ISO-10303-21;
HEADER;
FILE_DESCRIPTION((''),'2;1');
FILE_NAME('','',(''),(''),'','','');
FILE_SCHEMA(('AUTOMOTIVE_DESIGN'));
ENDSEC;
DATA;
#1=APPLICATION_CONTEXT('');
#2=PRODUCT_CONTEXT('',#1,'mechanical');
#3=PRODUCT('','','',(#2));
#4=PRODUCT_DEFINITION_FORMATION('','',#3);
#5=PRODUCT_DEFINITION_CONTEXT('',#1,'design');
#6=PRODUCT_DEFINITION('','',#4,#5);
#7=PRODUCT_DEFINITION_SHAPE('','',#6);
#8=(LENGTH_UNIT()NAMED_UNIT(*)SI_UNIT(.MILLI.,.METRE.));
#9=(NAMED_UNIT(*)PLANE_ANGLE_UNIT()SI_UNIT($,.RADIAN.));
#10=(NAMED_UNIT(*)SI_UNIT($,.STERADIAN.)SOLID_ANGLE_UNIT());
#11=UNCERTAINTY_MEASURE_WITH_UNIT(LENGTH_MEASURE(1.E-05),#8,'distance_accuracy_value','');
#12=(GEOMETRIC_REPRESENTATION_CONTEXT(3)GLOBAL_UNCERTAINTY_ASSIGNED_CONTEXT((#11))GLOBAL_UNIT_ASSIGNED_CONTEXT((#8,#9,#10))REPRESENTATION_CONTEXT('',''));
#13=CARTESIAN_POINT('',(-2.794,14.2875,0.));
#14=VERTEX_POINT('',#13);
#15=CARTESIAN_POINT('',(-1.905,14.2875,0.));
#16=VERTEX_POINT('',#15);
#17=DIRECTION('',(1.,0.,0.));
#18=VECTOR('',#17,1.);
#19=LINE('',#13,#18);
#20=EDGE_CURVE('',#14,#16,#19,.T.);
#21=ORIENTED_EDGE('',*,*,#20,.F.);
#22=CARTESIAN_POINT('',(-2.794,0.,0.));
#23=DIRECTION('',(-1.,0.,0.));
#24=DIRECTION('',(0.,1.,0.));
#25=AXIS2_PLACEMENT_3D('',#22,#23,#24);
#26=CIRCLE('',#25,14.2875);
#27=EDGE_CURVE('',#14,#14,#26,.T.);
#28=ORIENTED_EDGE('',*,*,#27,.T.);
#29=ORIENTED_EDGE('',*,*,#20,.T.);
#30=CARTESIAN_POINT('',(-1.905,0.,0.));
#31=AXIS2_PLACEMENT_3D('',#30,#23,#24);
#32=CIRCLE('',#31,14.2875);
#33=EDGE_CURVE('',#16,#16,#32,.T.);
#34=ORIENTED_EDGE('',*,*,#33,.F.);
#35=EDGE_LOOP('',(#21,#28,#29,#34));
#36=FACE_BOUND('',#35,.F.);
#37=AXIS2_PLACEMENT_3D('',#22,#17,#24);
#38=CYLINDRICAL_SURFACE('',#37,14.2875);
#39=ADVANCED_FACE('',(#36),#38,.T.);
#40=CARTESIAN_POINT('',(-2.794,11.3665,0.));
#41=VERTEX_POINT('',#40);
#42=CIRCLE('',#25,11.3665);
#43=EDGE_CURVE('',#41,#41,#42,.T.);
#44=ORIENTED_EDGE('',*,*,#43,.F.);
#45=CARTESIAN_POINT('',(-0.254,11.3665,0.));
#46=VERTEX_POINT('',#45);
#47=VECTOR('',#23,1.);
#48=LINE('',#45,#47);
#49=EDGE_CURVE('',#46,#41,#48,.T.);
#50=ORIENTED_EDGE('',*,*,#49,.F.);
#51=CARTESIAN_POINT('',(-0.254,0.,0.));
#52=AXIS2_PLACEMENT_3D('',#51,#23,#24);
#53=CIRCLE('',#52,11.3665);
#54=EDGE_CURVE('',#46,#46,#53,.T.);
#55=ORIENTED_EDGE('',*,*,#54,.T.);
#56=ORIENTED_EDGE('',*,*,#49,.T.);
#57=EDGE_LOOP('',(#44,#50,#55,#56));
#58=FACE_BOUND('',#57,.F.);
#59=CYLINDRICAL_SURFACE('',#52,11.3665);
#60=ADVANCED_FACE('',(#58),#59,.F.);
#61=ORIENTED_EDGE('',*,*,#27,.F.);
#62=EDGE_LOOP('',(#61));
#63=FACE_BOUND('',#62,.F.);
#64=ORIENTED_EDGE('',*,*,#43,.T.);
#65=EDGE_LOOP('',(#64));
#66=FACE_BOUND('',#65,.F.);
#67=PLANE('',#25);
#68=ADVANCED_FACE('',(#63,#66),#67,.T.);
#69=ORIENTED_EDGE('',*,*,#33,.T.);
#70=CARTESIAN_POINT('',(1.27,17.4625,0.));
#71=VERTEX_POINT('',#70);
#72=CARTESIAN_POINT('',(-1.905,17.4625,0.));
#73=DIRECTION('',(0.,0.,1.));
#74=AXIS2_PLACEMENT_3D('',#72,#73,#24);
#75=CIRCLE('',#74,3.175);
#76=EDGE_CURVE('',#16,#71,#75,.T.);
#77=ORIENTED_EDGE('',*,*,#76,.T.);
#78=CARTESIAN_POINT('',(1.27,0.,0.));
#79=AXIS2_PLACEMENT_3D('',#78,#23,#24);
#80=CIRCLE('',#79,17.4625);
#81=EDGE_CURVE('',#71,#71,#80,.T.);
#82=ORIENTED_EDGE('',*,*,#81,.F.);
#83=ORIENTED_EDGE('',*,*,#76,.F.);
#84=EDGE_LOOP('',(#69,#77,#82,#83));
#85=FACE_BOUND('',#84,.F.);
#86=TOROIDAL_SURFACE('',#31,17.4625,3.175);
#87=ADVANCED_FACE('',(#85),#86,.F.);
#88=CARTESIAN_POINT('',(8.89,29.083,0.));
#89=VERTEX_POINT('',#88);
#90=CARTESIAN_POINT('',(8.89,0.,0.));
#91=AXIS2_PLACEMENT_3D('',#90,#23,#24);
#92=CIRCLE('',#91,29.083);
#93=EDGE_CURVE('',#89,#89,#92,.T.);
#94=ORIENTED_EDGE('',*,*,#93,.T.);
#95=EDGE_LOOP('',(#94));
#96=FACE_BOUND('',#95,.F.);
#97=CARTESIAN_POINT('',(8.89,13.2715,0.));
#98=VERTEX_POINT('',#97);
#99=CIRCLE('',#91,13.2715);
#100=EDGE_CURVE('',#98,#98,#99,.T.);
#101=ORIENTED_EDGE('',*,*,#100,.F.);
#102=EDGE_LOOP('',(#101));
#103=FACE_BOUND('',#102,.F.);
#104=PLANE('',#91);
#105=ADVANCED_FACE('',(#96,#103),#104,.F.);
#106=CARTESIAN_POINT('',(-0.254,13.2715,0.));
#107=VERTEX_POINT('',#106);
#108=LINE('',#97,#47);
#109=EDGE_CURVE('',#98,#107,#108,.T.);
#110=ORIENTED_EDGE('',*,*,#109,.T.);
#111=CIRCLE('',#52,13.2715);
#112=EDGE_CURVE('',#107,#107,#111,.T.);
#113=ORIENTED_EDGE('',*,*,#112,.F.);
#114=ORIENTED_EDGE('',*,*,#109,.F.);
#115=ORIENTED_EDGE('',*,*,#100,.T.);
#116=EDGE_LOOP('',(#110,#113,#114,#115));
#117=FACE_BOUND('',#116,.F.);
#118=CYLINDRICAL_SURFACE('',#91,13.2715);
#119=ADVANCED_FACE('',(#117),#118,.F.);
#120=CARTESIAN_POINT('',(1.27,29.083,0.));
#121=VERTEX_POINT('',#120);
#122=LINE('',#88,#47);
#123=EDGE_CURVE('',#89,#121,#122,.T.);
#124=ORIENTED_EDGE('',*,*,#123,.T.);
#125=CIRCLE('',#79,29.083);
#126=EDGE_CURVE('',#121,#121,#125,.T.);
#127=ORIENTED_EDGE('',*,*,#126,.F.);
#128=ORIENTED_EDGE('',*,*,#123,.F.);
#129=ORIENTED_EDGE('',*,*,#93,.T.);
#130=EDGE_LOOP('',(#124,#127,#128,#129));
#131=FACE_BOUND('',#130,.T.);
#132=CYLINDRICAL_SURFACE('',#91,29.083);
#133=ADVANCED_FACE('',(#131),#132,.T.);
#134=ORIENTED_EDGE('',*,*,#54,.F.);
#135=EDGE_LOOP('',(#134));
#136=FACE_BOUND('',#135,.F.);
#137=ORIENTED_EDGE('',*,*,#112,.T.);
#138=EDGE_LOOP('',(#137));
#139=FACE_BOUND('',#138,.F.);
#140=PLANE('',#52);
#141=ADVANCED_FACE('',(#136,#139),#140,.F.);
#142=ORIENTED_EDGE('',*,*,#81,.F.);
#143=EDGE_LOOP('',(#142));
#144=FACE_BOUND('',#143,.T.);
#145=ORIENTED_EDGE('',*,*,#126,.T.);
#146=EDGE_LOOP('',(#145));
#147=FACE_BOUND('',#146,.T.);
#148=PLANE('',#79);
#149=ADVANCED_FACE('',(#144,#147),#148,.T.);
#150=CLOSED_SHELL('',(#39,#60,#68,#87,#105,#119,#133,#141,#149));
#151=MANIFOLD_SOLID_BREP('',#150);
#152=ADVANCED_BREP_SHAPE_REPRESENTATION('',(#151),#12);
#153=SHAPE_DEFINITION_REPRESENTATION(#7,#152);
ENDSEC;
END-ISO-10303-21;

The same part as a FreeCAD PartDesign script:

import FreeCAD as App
import Part
import Sketcher

V = App.Vector
Q = App.Units.Quantity


def edges_at(feature, points):
    """Names of the edges that pass closest to the given points."""
    edges = feature.Shape.Edges
    near = lambda p: min(range(len(edges)), key=lambda i: edges[i].distToShape(Part.Vertex(*p))[0])
    return sorted({f"Edge{near(p) + 1}" for p in points})


def add_polygon(sketch, points):
    """Adds a closed chain of lines whose ends are joined by coincident constraints."""
    first, n = sketch.GeometryCount, len(points)
    for a, b in zip(points, points[1:] + points[:1]):
        sketch.addGeometry(Part.LineSegment(App.Vector(*a, 0), App.Vector(*b, 0)), False)
    for i in range(n):
        sketch.addConstraint(Sketcher.Constraint("Coincident", first + i, 2, first + (i + 1) % n, 1))

doc = App.newDocument("Part")
body = doc.addObject("PartDesign::Body", "Body")

sketch1 = doc.addObject("Sketcher::SketchObject", "Sketch")
body.addObject(sketch1)
sketch1.AttachmentSupport = (doc.XY_Plane, [""])
sketch1.MapMode = "FlatFace"
add_polygon(sketch1, [(8.89, 13.2715), (8.89, 29.083), (1.27, 29.083), (1.27, 14.2875), (-2.794, 14.2875), (-2.794, 11.3665), (-0.254, 11.3665), (-0.254, 13.2715)])
sketch1.addConstraint([
    Sketcher.Constraint("Vertical", 0),
    Sketcher.Constraint("Horizontal", 1),
    Sketcher.Constraint("Vertical", 2),
    Sketcher.Constraint("Horizontal", 3),
    Sketcher.Constraint("Vertical", 4),
    Sketcher.Constraint("Horizontal", 5),
    Sketcher.Constraint("Vertical", 6),
    Sketcher.Constraint("Horizontal", 7),
    Sketcher.Constraint("DistanceX", 1, 2, 1, 1, Q("0.3 in")),
    Sketcher.Constraint("DistanceX", 5, 1, 5, 2, Q("0.1 in")),
    Sketcher.Constraint("DistanceX", 3, 2, 3, 1, Q("0.16 in")),
    Sketcher.Constraint("DistanceY", 4, 2, 4, 1, Q("0.115 in")),
    Sketcher.Constraint("DistanceY", 6, 1, 6, 2, Q("0.075 in")),
    Sketcher.Constraint("DistanceX", -1, 1, 0, 2, Q("0.35 in")),
    Sketcher.Constraint("DistanceY", 0, 1, 0, 2, Q("0.6225 in")),
    Sketcher.Constraint("DistanceY", -1, 1, 0, 2, Q("1.145 in")),
])
revolution = doc.addObject("PartDesign::Revolution", "Revolution")
body.addObject(revolution)
revolution.Profile = sketch1
revolution.ReferenceAxis = (sketch1, ["H_Axis"])
revolution.Angle = 360
doc.recompute()

fillet = doc.addObject("PartDesign::Fillet", "Fillet")
body.addObject(fillet)
fillet.Base = (revolution, edges_at(revolution, [(1.27, -14.287, 0)]))
fillet.Radius = Q("0.125 in")

doc.recompute()
